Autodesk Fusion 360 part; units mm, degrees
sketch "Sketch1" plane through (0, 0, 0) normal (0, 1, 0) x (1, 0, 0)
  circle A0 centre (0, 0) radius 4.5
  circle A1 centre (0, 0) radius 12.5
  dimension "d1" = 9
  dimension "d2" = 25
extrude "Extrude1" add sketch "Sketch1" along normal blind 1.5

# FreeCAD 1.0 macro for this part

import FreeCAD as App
import Part
import Sketcher
Q = App.Units.Quantity

doc = App.newDocument("Part")
body = doc.addObject("PartDesign::Body", "Body")

sketch1 = doc.addObject("Sketcher::SketchObject", "Sketch")
body.addObject(sketch1)
sketch1.AttachmentSupport = (doc.XZ_Plane, [""])
sketch1.MapMode = "FlatFace"
sketch1.addGeometry([
    Part.Circle(App.Vector(0, 0, 0), App.Vector(0, 0, 1), 12.5),
    Part.Circle(App.Vector(0, 0, 0), App.Vector(0, 0, 1), 4.5),
], False)
sketch1.addConstraint([
    Sketcher.Constraint("Coincident", 0, 3, -1, 1),
    Sketcher.Constraint("Coincident", 1, 3, -1, 1),
    Sketcher.Constraint("Diameter", 0, Q("25 mm")),
    Sketcher.Constraint("Diameter", 1, Q("9 mm")),
])
pad1 = doc.addObject("PartDesign::Pad", "Pad")
body.addObject(pad1)
pad1.Profile = sketch1
pad1.Length = 1.5
pad1.Reversed = True

doc.recompute()
